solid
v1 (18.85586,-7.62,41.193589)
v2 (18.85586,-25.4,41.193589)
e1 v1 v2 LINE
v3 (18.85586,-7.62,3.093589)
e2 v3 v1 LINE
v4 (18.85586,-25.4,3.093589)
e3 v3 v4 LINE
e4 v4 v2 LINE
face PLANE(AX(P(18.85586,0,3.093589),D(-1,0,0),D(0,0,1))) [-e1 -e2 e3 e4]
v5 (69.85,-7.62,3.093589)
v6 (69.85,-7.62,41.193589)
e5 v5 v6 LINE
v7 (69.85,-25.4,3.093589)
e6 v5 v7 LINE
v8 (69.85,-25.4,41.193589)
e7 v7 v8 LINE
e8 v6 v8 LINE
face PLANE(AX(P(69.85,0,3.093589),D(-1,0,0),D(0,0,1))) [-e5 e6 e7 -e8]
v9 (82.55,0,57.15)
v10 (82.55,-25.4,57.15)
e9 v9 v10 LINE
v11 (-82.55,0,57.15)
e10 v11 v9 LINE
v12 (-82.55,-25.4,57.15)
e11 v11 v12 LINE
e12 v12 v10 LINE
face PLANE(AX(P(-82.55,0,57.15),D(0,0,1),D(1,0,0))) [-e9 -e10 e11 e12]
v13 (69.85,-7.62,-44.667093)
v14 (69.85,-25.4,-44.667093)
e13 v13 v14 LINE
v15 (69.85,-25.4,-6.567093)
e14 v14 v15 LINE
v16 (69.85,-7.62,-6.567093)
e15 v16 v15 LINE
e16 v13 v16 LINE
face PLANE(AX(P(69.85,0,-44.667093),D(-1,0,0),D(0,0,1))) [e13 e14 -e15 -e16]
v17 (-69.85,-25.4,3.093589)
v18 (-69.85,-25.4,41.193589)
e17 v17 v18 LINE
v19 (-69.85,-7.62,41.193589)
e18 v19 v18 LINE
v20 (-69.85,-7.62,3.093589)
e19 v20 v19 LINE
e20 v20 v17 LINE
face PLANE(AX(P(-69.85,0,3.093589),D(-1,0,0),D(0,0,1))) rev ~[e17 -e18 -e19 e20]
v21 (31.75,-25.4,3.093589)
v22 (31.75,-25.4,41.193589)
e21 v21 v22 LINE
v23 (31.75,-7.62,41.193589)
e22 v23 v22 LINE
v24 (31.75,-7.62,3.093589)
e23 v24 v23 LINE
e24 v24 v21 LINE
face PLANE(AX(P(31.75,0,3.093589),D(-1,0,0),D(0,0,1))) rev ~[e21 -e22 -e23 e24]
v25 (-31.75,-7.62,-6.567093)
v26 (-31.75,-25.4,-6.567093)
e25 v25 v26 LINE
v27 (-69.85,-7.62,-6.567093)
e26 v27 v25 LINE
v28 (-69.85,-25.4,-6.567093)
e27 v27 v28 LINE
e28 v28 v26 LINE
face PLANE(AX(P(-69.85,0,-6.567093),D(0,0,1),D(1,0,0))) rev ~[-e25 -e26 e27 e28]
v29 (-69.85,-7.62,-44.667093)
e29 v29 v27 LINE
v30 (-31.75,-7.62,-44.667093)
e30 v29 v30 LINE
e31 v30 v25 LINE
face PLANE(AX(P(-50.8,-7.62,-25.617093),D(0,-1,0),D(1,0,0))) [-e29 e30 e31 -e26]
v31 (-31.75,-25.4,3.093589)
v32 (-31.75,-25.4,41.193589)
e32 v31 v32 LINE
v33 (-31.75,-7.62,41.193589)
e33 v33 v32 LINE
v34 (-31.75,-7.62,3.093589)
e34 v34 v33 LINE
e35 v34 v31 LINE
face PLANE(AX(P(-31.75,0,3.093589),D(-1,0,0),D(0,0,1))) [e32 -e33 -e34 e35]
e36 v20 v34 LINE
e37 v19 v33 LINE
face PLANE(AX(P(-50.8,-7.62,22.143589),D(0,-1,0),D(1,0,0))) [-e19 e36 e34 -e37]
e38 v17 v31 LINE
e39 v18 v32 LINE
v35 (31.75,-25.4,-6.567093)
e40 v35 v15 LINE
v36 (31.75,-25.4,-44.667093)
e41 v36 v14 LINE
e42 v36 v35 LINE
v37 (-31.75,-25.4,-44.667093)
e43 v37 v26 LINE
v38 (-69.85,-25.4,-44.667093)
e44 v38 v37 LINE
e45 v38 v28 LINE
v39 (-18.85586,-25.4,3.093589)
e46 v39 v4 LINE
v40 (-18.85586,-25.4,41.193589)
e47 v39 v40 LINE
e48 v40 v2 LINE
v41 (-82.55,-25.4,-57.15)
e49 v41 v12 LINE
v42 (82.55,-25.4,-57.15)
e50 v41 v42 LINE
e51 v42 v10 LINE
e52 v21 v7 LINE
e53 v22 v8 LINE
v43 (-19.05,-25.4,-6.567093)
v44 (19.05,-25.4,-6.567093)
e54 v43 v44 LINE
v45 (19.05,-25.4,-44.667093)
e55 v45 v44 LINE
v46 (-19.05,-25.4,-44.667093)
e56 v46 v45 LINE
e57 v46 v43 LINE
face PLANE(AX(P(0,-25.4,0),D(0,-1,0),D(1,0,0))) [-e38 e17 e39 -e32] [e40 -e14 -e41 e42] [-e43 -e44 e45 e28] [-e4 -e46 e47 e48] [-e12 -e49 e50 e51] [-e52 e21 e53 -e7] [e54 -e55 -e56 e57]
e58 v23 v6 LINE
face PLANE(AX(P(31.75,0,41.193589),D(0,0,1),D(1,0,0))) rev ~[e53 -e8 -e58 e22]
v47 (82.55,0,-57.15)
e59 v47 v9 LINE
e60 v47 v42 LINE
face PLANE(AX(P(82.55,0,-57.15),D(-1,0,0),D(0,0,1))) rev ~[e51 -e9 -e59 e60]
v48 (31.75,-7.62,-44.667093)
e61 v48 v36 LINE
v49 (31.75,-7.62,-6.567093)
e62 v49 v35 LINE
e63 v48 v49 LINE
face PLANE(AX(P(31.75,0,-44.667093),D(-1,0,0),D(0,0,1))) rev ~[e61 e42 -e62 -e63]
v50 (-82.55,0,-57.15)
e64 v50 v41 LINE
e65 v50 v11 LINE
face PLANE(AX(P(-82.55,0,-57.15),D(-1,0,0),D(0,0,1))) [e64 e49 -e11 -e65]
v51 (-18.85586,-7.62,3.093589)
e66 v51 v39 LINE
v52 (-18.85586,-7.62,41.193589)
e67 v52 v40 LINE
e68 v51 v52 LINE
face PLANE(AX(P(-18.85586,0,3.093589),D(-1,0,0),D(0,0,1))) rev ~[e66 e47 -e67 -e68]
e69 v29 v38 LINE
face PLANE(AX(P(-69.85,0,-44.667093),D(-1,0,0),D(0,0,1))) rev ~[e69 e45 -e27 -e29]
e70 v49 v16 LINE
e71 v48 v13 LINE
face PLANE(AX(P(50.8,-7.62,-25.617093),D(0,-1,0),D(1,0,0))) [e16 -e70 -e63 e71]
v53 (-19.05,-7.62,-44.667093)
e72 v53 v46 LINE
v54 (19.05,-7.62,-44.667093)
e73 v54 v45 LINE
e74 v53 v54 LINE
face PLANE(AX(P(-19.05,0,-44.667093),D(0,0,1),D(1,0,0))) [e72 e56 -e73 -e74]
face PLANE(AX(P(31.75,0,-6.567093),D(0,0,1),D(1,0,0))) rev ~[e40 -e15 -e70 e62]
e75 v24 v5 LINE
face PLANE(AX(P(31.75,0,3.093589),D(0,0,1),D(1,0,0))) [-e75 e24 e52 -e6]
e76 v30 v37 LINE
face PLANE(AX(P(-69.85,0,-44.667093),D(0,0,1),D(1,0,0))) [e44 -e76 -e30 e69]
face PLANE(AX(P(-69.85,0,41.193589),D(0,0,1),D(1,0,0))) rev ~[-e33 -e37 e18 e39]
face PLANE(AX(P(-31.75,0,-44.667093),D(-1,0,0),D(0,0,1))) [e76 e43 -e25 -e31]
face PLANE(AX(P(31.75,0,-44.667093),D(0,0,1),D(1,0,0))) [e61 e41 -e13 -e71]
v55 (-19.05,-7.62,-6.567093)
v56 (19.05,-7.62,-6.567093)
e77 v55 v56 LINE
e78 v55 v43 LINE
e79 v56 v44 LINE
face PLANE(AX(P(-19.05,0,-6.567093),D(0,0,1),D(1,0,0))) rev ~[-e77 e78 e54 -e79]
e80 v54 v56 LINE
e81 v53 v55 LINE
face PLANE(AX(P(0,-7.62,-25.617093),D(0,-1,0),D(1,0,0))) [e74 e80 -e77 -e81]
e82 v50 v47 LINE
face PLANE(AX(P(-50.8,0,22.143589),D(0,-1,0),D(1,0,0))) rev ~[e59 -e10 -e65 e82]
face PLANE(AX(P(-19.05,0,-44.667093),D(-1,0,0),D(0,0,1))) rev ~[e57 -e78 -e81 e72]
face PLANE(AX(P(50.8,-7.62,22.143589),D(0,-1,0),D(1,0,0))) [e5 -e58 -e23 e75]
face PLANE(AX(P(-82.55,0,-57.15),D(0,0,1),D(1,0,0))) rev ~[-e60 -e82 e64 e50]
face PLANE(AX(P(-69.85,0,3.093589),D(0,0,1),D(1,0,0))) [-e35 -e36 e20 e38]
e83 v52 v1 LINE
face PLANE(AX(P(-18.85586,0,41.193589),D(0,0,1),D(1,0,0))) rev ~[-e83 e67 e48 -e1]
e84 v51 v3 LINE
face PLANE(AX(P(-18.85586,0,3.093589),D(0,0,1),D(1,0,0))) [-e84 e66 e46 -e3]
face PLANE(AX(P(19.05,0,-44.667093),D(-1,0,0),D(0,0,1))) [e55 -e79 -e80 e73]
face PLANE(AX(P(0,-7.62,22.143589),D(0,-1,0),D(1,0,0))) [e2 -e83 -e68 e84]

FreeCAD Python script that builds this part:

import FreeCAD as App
import Part
import Sketcher
from FreeCAD import Vector
Q = App.Units.Quantity


def add_polygon(sketch, points):
    """Adds a closed chain of lines whose ends are joined by coincident constraints."""
    first, n = sketch.GeometryCount, len(points)
    for a, b in zip(points, points[1:] + points[:1]):
        sketch.addGeometry(Part.LineSegment(App.Vector(*a, 0), App.Vector(*b, 0)), False)
    for i in range(n):
        sketch.addConstraint(Sketcher.Constraint("Coincident", first + i, 2, first + (i + 1) % n, 1))

doc = App.newDocument("Part")
body = doc.addObject("PartDesign::Body", "Body")

# Sketch on XZ plane
sketch1 = body.newObject("Sketcher::SketchObject", "Sketch")
sketch1.AttachmentSupport = (doc.getObject("XZ_Plane"), [""])
sketch1.MapMode = "FlatFace"
add_polygon(sketch1, [(-83, 57), (-83, -57), (83, -57), (83, 57)])  # lines 0-3
add_polygon(sketch1, [(-32, -45), (-70, -45), (-70, -7), (-32, -7)])  # lines 4-7
add_polygon(sketch1, [(19, -45), (-19, -45), (-19, -7), (19, -7)])  # lines 8-11
add_polygon(sketch1, [(70, -45), (32, -45), (32, -7), (70, -7)])  # lines 12-15
add_polygon(sketch1, [(-32, 3), (-70, 3), (-70, 41), (-32, 41)])  # lines 16-19
add_polygon(sketch1, [(19, 3), (-19, 3), (-19, 41), (19, 41)])  # lines 20-23
add_polygon(sketch1, [(70, 3), (32, 3), (32, 41), (70, 41)])  # lines 24-27
sketch1.addConstraint(Sketcher.Constraint("Vertical", 0))
sketch1.addConstraint(Sketcher.Constraint("Horizontal", 1))
sketch1.addConstraint(Sketcher.Constraint("Vertical", 2))
sketch1.addConstraint(Sketcher.Constraint("Horizontal", 3))
sketch1.addConstraint(Sketcher.Constraint("Horizontal", 4))
sketch1.addConstraint(Sketcher.Constraint("Vertical", 5))
sketch1.addConstraint(Sketcher.Constraint("Horizontal", 6))
sketch1.addConstraint(Sketcher.Constraint("Vertical", 7))
sketch1.addConstraint(Sketcher.Constraint("Horizontal", 8))
sketch1.addConstraint(Sketcher.Constraint("Vertical", 9))
sketch1.addConstraint(Sketcher.Constraint("Horizontal", 10))
sketch1.addConstraint(Sketcher.Constraint("Vertical", 11))
sketch1.addConstraint(Sketcher.Constraint("Horizontal", 12))
sketch1.addConstraint(Sketcher.Constraint("Vertical", 13))
sketch1.addConstraint(Sketcher.Constraint("Horizontal", 14))
sketch1.addConstraint(Sketcher.Constraint("Vertical", 15))
sketch1.addConstraint(Sketcher.Constraint("Horizontal", 16))
sketch1.addConstraint(Sketcher.Constraint("Vertical", 17))
sketch1.addConstraint(Sketcher.Constraint("Horizontal", 18))
sketch1.addConstraint(Sketcher.Constraint("Vertical", 19))
sketch1.addConstraint(Sketcher.Constraint("Horizontal", 20))
sketch1.addConstraint(Sketcher.Constraint("Vertical", 21))
sketch1.addConstraint(Sketcher.Constraint("Horizontal", 22))
sketch1.addConstraint(Sketcher.Constraint("Vertical", 23))
sketch1.addConstraint(Sketcher.Constraint("Horizontal", 24))
sketch1.addConstraint(Sketcher.Constraint("Vertical", 25))
sketch1.addConstraint(Sketcher.Constraint("Horizontal", 26))
sketch1.addConstraint(Sketcher.Constraint("Vertical", 27))
sketch1.addConstraint(Sketcher.Constraint("Symmetric", 0, 2, 2, 2, -1, 1))
sketch1.addConstraint(Sketcher.Constraint("Symmetric", 7, 2, 12, 2, -2))
sketch1.addConstraint(Sketcher.Constraint("Symmetric", 5, 2, 14, 2, -2))
sketch1.addConstraint(Sketcher.Constraint("Symmetric", 19, 2, 24, 2, -2))
sketch1.addConstraint(Sketcher.Constraint("Symmetric", 17, 2, 26, 2, -2))
sketch1.addConstraint(Sketcher.Constraint("Horizontal", 7, 2, 8, 2))
sketch1.addConstraint(Sketcher.Constraint("Horizontal", 6, 2, 9, 2))
sketch1.addConstraint(Sketcher.Constraint("Horizontal", 19, 2, 20, 2))
sketch1.addConstraint(Sketcher.Constraint("Horizontal", 18, 2, 21, 2))
sketch1.addConstraint(Sketcher.Constraint("Vertical", 5, 2, 16, 2))
sketch1.addConstraint(Sketcher.Constraint("Vertical", 7, 2, 18, 2))
sketch1.addConstraint(Sketcher.Constraint("Equal", 6, 8))
sketch1.addConstraint(Sketcher.Constraint("Equal", 26, 5))
sketch1.addConstraint(Sketcher.Constraint("Equal", 15, 17))
sketch1.addConstraint(Sketcher.Constraint("DistanceX", 1, 1, 1, 2, Q("6.5 in")))
sketch1.addConstraint(Sketcher.Constraint("DistanceX", 4, 2, 4, 1, Q("1.5 in")))
sketch1.addConstraint(Sketcher.Constraint("DistanceY", 0, 2, 0, 1, Q("4.5 in")))
sketch1.addConstraint(Sketcher.Constraint("DistanceX", 4, 2, 1, 2, Q("6 in")))
sketch1.addConstraint(Sketcher.Constraint("DistanceX", 4, 2, 8, 2, Q("2 in")))
sketch1.addConstraint(Sketcher.Constraint("DistanceX", 20, 2, 20, 1, 37.71172))
sketch1.addConstraint(Sketcher.Constraint("DistanceY", -1, 1, 16, 2, 3.093589))
sketch1.addConstraint(Sketcher.Constraint("DistanceX", 20, 2, -1, 1, 18.85586))
sketch1.addConstraint(Sketcher.Constraint("DistanceY", 4, 2, -1, 1, 44.667093))
pad1 = body.newObject("PartDesign::Pad", "Pad")
pad1.Profile = sketch1
pad1.Length = Q("1 in")

# Sketch on XZ plane
sketch2 = body.newObject("Sketcher::SketchObject", "Sketch001")
sketch2.AttachmentSupport = (doc.getObject("XZ_Plane"), [""])
sketch2.MapMode = "FlatFace"
add_polygon(sketch2, [(-70, 41), (-70, 3), (-32, 3), (-32, 41)])  # lines 0-3
add_polygon(sketch2, [(-19, 41), (-19, 3), (19, 3), (19, 41)])  # lines 4-7
add_polygon(sketch2, [(32, 41), (32, 3), (70, 3), (70, 41)])  # lines 8-11
add_polygon(sketch2, [(-70, -7), (-70, -45), (-32, -45), (-32, -7)])  # lines 12-15
add_polygon(sketch2, [(-19, -7), (-19, -45), (19, -45), (19, -7)])  # lines 16-19
add_polygon(sketch2, [(32, -7), (32, -45), (70, -45), (70, -7)])  # lines 20-23
sketch2.addConstraint(Sketcher.Constraint("Vertical", 0))
sketch2.addConstraint(Sketcher.Constraint("Horizontal", 1))
sketch2.addConstraint(Sketcher.Constraint("Vertical", 2))
sketch2.addConstraint(Sketcher.Constraint("Horizontal", 3))
sketch2.addConstraint(Sketcher.Constraint("Vertical", 4))
sketch2.addConstraint(Sketcher.Constraint("Horizontal", 5))
sketch2.addConstraint(Sketcher.Constraint("Vertical", 6))
sketch2.addConstraint(Sketcher.Constraint("Horizontal", 7))
sketch2.addConstraint(Sketcher.Constraint("Vertical", 8))
sketch2.addConstraint(Sketcher.Constraint("Horizontal", 9))
sketch2.addConstraint(Sketcher.Constraint("Vertical", 10))
sketch2.addConstraint(Sketcher.Constraint("Horizontal", 11))
sketch2.addConstraint(Sketcher.Constraint("Vertical", 12))
sketch2.addConstraint(Sketcher.Constraint("Horizontal", 13))
sketch2.addConstraint(Sketcher.Constraint("Vertical", 14))
sketch2.addConstraint(Sketcher.Constraint("Horizontal", 15))
sketch2.addConstraint(Sketcher.Constraint("Vertical", 16))
sketch2.addConstraint(Sketcher.Constraint("Horizontal", 17))
sketch2.addConstraint(Sketcher.Constraint("Vertical", 18))
sketch2.addConstraint(Sketcher.Constraint("Horizontal", 19))
sketch2.addConstraint(Sketcher.Constraint("Vertical", 20))
sketch2.addConstraint(Sketcher.Constraint("Horizontal", 21))
sketch2.addConstraint(Sketcher.Constraint("Vertical", 22))
sketch2.addConstraint(Sketcher.Constraint("Horizontal", 23))
sketch2.addConstraint(Sketcher.Constraint("Symmetric", 1, 2, 8, 2, -2))
sketch2.addConstraint(Sketcher.Constraint("Symmetric", 3, 2, 10, 2, -2))
sketch2.addConstraint(Sketcher.Constraint("Symmetric", 13, 2, 20, 2, -2))
sketch2.addConstraint(Sketcher.Constraint("Symmetric", 15, 2, 22, 2, -2))
sketch2.addConstraint(Sketcher.Constraint("Horizontal", 1, 2, 4, 2))
sketch2.addConstraint(Sketcher.Constraint("Horizontal", 3, 2, 6, 2))
sketch2.addConstraint(Sketcher.Constraint("Horizontal", 13, 2, 16, 2))
sketch2.addConstraint(Sketcher.Constraint("Horizontal", 15, 2, 18, 2))
sketch2.addConstraint(Sketcher.Constraint("Vertical", 3, 2, 12, 2))
sketch2.addConstraint(Sketcher.Constraint("Vertical", 2, 2, 13, 2))
sketch2.addConstraint(Sketcher.Constraint("Equal", 15, 17))
sketch2.addConstraint(Sketcher.Constraint("Equal", 23, 0))
sketch2.addConstraint(Sketcher.Constraint("Equal", 10, 12))
sketch2.addConstraint(Sketcher.Constraint("DistanceX", 1, 1, 1, 2, Q("1.5 in")))
sketch2.addConstraint(Sketcher.Constraint("DistanceX", 12, 2, 16, 2, Q("2 in")))
sketch2.addConstraint(Sketcher.Constraint("DistanceX", 16, 2, 20, 2, Q("2 in")))
sketch2.addConstraint(Sketcher.Constraint("DistanceX", 5, 1, 5, 2, 37.71172))
sketch2.addConstraint(Sketcher.Constraint("DistanceY", -1, 1, 0, 2, 3.093589))
sketch2.addConstraint(Sketcher.Constraint("DistanceX", 4, 2, -1, 1, 18.85586))
sketch2.addConstraint(Sketcher.Constraint("DistanceY", 12, 2, 3, 2, 85.860682))
pad2 = body.newObject("PartDesign::Pad", "Pad001")
pad2.Profile = sketch2
pad2.Length = Q("0.3 in")

doc.recompute()
